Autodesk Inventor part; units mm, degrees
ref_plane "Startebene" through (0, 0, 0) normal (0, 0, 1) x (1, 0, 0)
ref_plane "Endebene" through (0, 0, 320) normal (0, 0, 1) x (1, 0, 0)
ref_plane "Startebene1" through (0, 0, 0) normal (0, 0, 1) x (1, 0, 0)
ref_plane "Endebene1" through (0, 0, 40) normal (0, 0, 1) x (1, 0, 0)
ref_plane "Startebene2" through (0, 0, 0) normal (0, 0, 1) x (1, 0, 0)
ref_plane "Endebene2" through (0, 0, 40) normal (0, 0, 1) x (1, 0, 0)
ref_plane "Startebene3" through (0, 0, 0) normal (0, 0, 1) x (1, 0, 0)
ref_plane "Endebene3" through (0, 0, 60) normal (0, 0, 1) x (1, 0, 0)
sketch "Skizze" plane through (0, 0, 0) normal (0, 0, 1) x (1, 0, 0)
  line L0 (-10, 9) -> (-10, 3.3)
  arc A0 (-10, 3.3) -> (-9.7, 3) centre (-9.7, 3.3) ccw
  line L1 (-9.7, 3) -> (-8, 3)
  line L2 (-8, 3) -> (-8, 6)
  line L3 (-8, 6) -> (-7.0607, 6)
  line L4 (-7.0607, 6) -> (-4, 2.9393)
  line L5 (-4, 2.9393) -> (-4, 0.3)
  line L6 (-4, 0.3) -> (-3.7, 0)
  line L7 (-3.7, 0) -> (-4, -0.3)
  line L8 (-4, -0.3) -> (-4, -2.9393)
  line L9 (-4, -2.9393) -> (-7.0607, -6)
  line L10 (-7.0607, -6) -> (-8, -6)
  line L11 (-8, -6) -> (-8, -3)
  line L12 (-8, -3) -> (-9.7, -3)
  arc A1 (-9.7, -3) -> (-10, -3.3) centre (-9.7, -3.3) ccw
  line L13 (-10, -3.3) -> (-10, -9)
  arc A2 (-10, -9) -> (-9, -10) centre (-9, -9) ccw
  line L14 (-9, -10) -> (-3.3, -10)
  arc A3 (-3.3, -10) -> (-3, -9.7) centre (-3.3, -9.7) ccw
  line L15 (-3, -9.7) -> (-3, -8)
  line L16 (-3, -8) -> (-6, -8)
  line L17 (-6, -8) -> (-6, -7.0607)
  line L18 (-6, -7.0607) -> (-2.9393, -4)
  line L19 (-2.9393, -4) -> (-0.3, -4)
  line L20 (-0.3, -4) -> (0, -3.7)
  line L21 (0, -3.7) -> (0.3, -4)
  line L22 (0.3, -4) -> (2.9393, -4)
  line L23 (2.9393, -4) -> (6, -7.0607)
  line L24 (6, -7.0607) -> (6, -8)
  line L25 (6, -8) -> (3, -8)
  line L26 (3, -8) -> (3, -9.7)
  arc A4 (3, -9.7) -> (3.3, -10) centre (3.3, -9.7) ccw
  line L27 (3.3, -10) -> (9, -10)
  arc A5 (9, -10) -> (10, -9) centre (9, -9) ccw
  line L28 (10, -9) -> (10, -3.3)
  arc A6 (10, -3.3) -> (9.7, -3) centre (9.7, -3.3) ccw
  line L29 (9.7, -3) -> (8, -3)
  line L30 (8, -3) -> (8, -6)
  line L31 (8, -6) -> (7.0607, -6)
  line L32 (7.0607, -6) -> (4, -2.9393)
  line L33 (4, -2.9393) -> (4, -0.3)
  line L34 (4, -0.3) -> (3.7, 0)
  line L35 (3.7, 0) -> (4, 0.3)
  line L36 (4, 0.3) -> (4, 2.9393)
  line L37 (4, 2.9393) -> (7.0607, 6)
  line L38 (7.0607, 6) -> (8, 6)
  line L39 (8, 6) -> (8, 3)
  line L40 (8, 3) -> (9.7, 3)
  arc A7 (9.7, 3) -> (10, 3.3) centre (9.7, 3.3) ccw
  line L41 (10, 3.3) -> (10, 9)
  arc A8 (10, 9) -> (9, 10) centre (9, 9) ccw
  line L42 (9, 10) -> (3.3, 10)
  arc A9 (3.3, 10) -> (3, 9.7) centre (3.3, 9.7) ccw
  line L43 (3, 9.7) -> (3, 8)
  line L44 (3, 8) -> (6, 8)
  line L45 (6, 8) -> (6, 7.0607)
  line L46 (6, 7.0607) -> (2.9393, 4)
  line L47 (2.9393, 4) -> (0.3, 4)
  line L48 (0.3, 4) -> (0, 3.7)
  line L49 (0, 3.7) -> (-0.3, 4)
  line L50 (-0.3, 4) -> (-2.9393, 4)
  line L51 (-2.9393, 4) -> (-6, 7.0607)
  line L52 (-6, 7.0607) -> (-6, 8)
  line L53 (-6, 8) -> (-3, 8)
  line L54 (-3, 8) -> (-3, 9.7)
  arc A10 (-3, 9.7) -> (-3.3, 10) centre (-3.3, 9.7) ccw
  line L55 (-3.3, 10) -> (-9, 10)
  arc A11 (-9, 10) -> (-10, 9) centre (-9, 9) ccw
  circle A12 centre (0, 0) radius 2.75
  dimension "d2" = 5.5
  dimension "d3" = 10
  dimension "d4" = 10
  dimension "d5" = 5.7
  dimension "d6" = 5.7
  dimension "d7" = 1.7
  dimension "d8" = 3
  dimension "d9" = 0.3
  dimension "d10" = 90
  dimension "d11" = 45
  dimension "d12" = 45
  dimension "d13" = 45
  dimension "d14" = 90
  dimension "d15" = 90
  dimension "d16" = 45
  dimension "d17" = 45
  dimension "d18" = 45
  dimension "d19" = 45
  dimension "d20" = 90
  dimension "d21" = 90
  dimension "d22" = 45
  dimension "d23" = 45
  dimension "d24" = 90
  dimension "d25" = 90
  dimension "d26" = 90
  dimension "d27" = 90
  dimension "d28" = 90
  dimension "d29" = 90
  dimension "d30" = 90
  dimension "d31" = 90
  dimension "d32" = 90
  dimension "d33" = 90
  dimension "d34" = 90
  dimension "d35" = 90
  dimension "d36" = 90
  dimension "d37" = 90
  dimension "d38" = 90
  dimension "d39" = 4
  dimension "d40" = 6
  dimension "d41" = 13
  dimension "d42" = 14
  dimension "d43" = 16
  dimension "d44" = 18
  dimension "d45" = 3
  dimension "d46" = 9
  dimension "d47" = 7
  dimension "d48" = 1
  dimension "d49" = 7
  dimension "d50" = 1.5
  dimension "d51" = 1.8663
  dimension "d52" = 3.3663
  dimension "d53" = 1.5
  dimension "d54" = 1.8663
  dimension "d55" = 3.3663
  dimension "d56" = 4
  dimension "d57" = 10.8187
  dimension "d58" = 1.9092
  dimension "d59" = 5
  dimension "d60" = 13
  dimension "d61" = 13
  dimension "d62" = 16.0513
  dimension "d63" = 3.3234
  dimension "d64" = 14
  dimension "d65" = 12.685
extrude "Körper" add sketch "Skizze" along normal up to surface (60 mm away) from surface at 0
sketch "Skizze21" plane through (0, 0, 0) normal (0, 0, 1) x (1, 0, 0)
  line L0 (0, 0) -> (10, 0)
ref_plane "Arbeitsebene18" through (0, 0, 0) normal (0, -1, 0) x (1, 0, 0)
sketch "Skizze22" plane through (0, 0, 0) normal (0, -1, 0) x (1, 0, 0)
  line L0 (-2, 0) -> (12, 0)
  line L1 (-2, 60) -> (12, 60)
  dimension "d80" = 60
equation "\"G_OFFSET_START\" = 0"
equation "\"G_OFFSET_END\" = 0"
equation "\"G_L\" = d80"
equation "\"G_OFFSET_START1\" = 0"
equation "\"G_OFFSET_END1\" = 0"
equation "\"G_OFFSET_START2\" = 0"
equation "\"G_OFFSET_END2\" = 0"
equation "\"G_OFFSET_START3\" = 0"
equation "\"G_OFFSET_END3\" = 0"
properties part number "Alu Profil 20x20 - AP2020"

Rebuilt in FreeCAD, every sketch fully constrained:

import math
import FreeCAD as App
import Part
import Sketcher
Q = App.Units.Quantity

doc = App.newDocument("Part")
body = doc.addObject("PartDesign::Body", "Body")

sketch1 = body.newObject("Sketcher::SketchObject", "Sketch")
sketch1.AttachmentSupport = (doc.getObject("XY_Plane"), [""])
sketch1.MapMode = "FlatFace"
sketch1.addGeometry(Part.ArcOfCircle(Part.Circle(App.Vector(-9, 9, 0), App.Vector(0, 0, 1), 1), math.radians(90), math.radians(180)), False)
sketch1.addGeometry(Part.LineSegment(App.Vector(-10, 9, 0), App.Vector(-10, 3.3, 0)), False)
sketch1.addGeometry(Part.ArcOfCircle(Part.Circle(App.Vector(-9.7, 3.3, 0), App.Vector(0, 0, 1), 0.3), math.radians(180), math.radians(270)), False)
sketch1.addGeometry(Part.LineSegment(App.Vector(-9.7, 3, 0), App.Vector(-8, 3, 0)), False)
sketch1.addGeometry(Part.LineSegment(App.Vector(-8, 3, 0), App.Vector(-8, 6, 0)), False)
sketch1.addGeometry(Part.LineSegment(App.Vector(-8, 6, 0), App.Vector(-7.06, 6, 0)), False)
sketch1.addGeometry(Part.LineSegment(App.Vector(-7.06, 6, 0), App.Vector(-4, 2.94, 0)), False)
sketch1.addGeometry(Part.LineSegment(App.Vector(-4, 2.94, 0), App.Vector(-4, 0.3, 0)), False)
sketch1.addGeometry(Part.LineSegment(App.Vector(-4, 0.3, 0), App.Vector(-3.7, 0, 0)), False)
sketch1.addGeometry(Part.LineSegment(App.Vector(-3.7, 0, 0), App.Vector(-4, -0.3, 0)), False)
sketch1.addGeometry(Part.LineSegment(App.Vector(-4, -0.3, 0), App.Vector(-4, -2.94, 0)), False)
sketch1.addGeometry(Part.LineSegment(App.Vector(-4, -2.94, 0), App.Vector(-7.06, -6, 0)), False)
sketch1.addGeometry(Part.LineSegment(App.Vector(-7.06, -6, 0), App.Vector(-8, -6, 0)), False)
sketch1.addGeometry(Part.LineSegment(App.Vector(-8, -6, 0), App.Vector(-8, -3, 0)), False)
sketch1.addGeometry(Part.LineSegment(App.Vector(-8, -3, 0), App.Vector(-9.7, -3, 0)), False)
sketch1.addGeometry(Part.ArcOfCircle(Part.Circle(App.Vector(-9.7, -3.3, 0), App.Vector(0, 0, 1), 0.3), math.radians(90), math.radians(180)), False)
sketch1.addGeometry(Part.LineSegment(App.Vector(-10, -3.3, 0), App.Vector(-10, -9, 0)), False)
sketch1.addGeometry(Part.ArcOfCircle(Part.Circle(App.Vector(-9, -9, 0), App.Vector(0, 0, 1), 1), math.radians(180), math.radians(270)), False)
sketch1.addGeometry(Part.LineSegment(App.Vector(-9, -10, 0), App.Vector(-3.3, -10, 0)), False)
sketch1.addGeometry(Part.ArcOfCircle(Part.Circle(App.Vector(-3.3, -9.7, 0), App.Vector(0, 0, 1), 0.3), math.radians(-90), math.radians(0)), False)
sketch1.addGeometry(Part.LineSegment(App.Vector(-3, -9.7, 0), App.Vector(-3, -8, 0)), False)
sketch1.addGeometry(Part.LineSegment(App.Vector(-3, -8, 0), App.Vector(-6, -8, 0)), False)
sketch1.addGeometry(Part.LineSegment(App.Vector(-6, -8, 0), App.Vector(-6, -7.06, 0)), False)
sketch1.addGeometry(Part.LineSegment(App.Vector(-6, -7.06, 0), App.Vector(-2.94, -4, 0)), False)
sketch1.addGeometry(Part.LineSegment(App.Vector(-2.94, -4, 0), App.Vector(-0.3, -4, 0)), False)
sketch1.addGeometry(Part.LineSegment(App.Vector(-0.3, -4, 0), App.Vector(0, -3.7, 0)), False)
sketch1.addGeometry(Part.LineSegment(App.Vector(0, -3.7, 0), App.Vector(0.3, -4, 0)), False)
sketch1.addGeometry(Part.LineSegment(App.Vector(0.3, -4, 0), App.Vector(2.94, -4, 0)), False)
sketch1.addGeometry(Part.LineSegment(App.Vector(2.94, -4, 0), App.Vector(6, -7.06, 0)), False)
sketch1.addGeometry(Part.LineSegment(App.Vector(6, -7.06, 0), App.Vector(6, -8, 0)), False)
sketch1.addGeometry(Part.LineSegment(App.Vector(6, -8, 0), App.Vector(3, -8, 0)), False)
sketch1.addGeometry(Part.LineSegment(App.Vector(3, -8, 0), App.Vector(3, -9.7, 0)), False)
sketch1.addGeometry(Part.ArcOfCircle(Part.Circle(App.Vector(3.3, -9.7, 0), App.Vector(0, 0, 1), 0.3), math.radians(180), math.radians(270)), False)
sketch1.addGeometry(Part.LineSegment(App.Vector(3.3, -10, 0), App.Vector(9, -10, 0)), False)
sketch1.addGeometry(Part.ArcOfCircle(Part.Circle(App.Vector(9, -9, 0), App.Vector(0, 0, 1), 1), math.radians(-90), math.radians(0)), False)
sketch1.addGeometry(Part.LineSegment(App.Vector(10, -9, 0), App.Vector(10, -3.3, 0)), False)
sketch1.addGeometry(Part.ArcOfCircle(Part.Circle(App.Vector(9.7, -3.3, 0), App.Vector(0, 0, 1), 0.3), math.radians(0), math.radians(90)), False)
sketch1.addGeometry(Part.LineSegment(App.Vector(9.7, -3, 0), App.Vector(8, -3, 0)), False)
sketch1.addGeometry(Part.LineSegment(App.Vector(8, -3, 0), App.Vector(8, -6, 0)), False)
sketch1.addGeometry(Part.LineSegment(App.Vector(8, -6, 0), App.Vector(7.06, -6, 0)), False)
sketch1.addGeometry(Part.LineSegment(App.Vector(7.06, -6, 0), App.Vector(4, -2.94, 0)), False)
sketch1.addGeometry(Part.LineSegment(App.Vector(4, -2.94, 0), App.Vector(4, -0.3, 0)), False)
sketch1.addGeometry(Part.LineSegment(App.Vector(4, -0.3, 0), App.Vector(3.7, 0, 0)), False)
sketch1.addGeometry(Part.LineSegment(App.Vector(3.7, 0, 0), App.Vector(4, 0.3, 0)), False)
sketch1.addGeometry(Part.LineSegment(App.Vector(4, 0.3, 0), App.Vector(4, 2.94, 0)), False)
sketch1.addGeometry(Part.LineSegment(App.Vector(4, 2.94, 0), App.Vector(7.06, 6, 0)), False)
sketch1.addGeometry(Part.LineSegment(App.Vector(7.06, 6, 0), App.Vector(8, 6, 0)), False)
sketch1.addGeometry(Part.LineSegment(App.Vector(8, 6, 0), App.Vector(8, 3, 0)), False)
sketch1.addGeometry(Part.LineSegment(App.Vector(8, 3, 0), App.Vector(9.7, 3, 0)), False)
sketch1.addGeometry(Part.ArcOfCircle(Part.Circle(App.Vector(9.7, 3.3, 0), App.Vector(0, 0, 1), 0.3), math.radians(-90), math.radians(0)), False)
sketch1.addGeometry(Part.LineSegment(App.Vector(10, 3.3, 0), App.Vector(10, 9, 0)), False)
sketch1.addGeometry(Part.ArcOfCircle(Part.Circle(App.Vector(9, 9, 0), App.Vector(0, 0, 1), 1), math.radians(0), math.radians(90)), False)
sketch1.addGeometry(Part.LineSegment(App.Vector(9, 10, 0), App.Vector(3.3, 10, 0)), False)
sketch1.addGeometry(Part.ArcOfCircle(Part.Circle(App.Vector(3.3, 9.7, 0), App.Vector(0, 0, 1), 0.3), math.radians(90), math.radians(180)), False)
sketch1.addGeometry(Part.LineSegment(App.Vector(3, 9.7, 0), App.Vector(3, 8, 0)), False)
sketch1.addGeometry(Part.LineSegment(App.Vector(3, 8, 0), App.Vector(6, 8, 0)), False)
sketch1.addGeometry(Part.LineSegment(App.Vector(6, 8, 0), App.Vector(6, 7.06, 0)), False)
sketch1.addGeometry(Part.LineSegment(App.Vector(6, 7.06, 0), App.Vector(2.94, 4, 0)), False)
sketch1.addGeometry(Part.LineSegment(App.Vector(2.94, 4, 0), App.Vector(0.3, 4, 0)), False)
sketch1.addGeometry(Part.LineSegment(App.Vector(0.3, 4, 0), App.Vector(0, 3.7, 0)), False)
sketch1.addGeometry(Part.LineSegment(App.Vector(0, 3.7, 0), App.Vector(-0.3, 4, 0)), False)
sketch1.addGeometry(Part.LineSegment(App.Vector(-0.3, 4, 0), App.Vector(-2.94, 4, 0)), False)
sketch1.addGeometry(Part.LineSegment(App.Vector(-2.94, 4, 0), App.Vector(-6, 7.06, 0)), False)
sketch1.addGeometry(Part.LineSegment(App.Vector(-6, 7.06, 0), App.Vector(-6, 8, 0)), False)
sketch1.addGeometry(Part.LineSegment(App.Vector(-6, 8, 0), App.Vector(-3, 8, 0)), False)
sketch1.addGeometry(Part.LineSegment(App.Vector(-3, 8, 0), App.Vector(-3, 9.7, 0)), False)
sketch1.addGeometry(Part.ArcOfCircle(Part.Circle(App.Vector(-3.3, 9.7, 0), App.Vector(0, 0, 1), 0.3), math.radians(0), math.radians(90)), False)
sketch1.addGeometry(Part.LineSegment(App.Vector(-3.3, 10, 0), App.Vector(-9, 10, 0)), False)
sketch1.addGeometry(Part.Circle(App.Vector(0, 0, 0), App.Vector(0, 0, 1), 2.75), False)
sketch1.addConstraint(Sketcher.Constraint("Tangent", 0, 2, 1, 1))
sketch1.addConstraint(Sketcher.Constraint("Tangent", 1, 2, 2, 1))
sketch1.addConstraint(Sketcher.Constraint("Tangent", 2, 2, 3, 1))
sketch1.addConstraint(Sketcher.Constraint("Coincident", 3, 2, 4, 1))
sketch1.addConstraint(Sketcher.Constraint("Coincident", 4, 2, 5, 1))
sketch1.addConstraint(Sketcher.Constraint("Coincident", 5, 2, 6, 1))
sketch1.addConstraint(Sketcher.Constraint("Coincident", 6, 2, 7, 1))
sketch1.addConstraint(Sketcher.Constraint("Coincident", 7, 2, 8, 1))
sketch1.addConstraint(Sketcher.Constraint("Coincident", 8, 2, 9, 1))
sketch1.addConstraint(Sketcher.Constraint("Coincident", 9, 2, 10, 1))
sketch1.addConstraint(Sketcher.Constraint("Coincident", 10, 2, 11, 1))
sketch1.addConstraint(Sketcher.Constraint("Coincident", 11, 2, 12, 1))
sketch1.addConstraint(Sketcher.Constraint("Coincident", 12, 2, 13, 1))
sketch1.addConstraint(Sketcher.Constraint("Coincident", 13, 2, 14, 1))
sketch1.addConstraint(Sketcher.Constraint("Tangent", 14, 2, 15, 1))
sketch1.addConstraint(Sketcher.Constraint("Tangent", 15, 2, 16, 1))
sketch1.addConstraint(Sketcher.Constraint("Tangent", 16, 2, 17, 1))
sketch1.addConstraint(Sketcher.Constraint("Tangent", 17, 2, 18, 1))
sketch1.addConstraint(Sketcher.Constraint("Tangent", 18, 2, 19, 1))
sketch1.addConstraint(Sketcher.Constraint("Tangent", 19, 2, 20, 1))
sketch1.addConstraint(Sketcher.Constraint("Coincident", 20, 2, 21, 1))
sketch1.addConstraint(Sketcher.Constraint("Coincident", 21, 2, 22, 1))
sketch1.addConstraint(Sketcher.Constraint("Coincident", 22, 2, 23, 1))
sketch1.addConstraint(Sketcher.Constraint("Coincident", 23, 2, 24, 1))
sketch1.addConstraint(Sketcher.Constraint("Coincident", 24, 2, 25, 1))
sketch1.addConstraint(Sketcher.Constraint("Coincident", 25, 2, 26, 1))
sketch1.addConstraint(Sketcher.Constraint("Coincident", 26, 2, 27, 1))
sketch1.addConstraint(Sketcher.Constraint("Coincident", 27, 2, 28, 1))
sketch1.addConstraint(Sketcher.Constraint("Coincident", 28, 2, 29, 1))
sketch1.addConstraint(Sketcher.Constraint("Coincident", 29, 2, 30, 1))
sketch1.addConstraint(Sketcher.Constraint("Coincident", 30, 2, 31, 1))
sketch1.addConstraint(Sketcher.Constraint("Tangent", 31, 2, 32, 1))
sketch1.addConstraint(Sketcher.Constraint("Tangent", 32, 2, 33, 1))
sketch1.addConstraint(Sketcher.Constraint("Tangent", 33, 2, 34, 1))
sketch1.addConstraint(Sketcher.Constraint("Tangent", 34, 2, 35, 1))
sketch1.addConstraint(Sketcher.Constraint("Tangent", 35, 2, 36, 1))
sketch1.addConstraint(Sketcher.Constraint("Tangent", 36, 2, 37, 1))
sketch1.addConstraint(Sketcher.Constraint("Coincident", 37, 2, 38, 1))
sketch1.addConstraint(Sketcher.Constraint("Coincident", 38, 2, 39, 1))
sketch1.addConstraint(Sketcher.Constraint("Coincident", 39, 2, 40, 1))
sketch1.addConstraint(Sketcher.Constraint("Coincident", 40, 2, 41, 1))
sketch1.addConstraint(Sketcher.Constraint("Coincident", 41, 2, 42, 1))
sketch1.addConstraint(Sketcher.Constraint("Coincident", 42, 2, 43, 1))
sketch1.addConstraint(Sketcher.Constraint("Coincident", 43, 2, 44, 1))
sketch1.addConstraint(Sketcher.Constraint("Coincident", 44, 2, 45, 1))
sketch1.addConstraint(Sketcher.Constraint("Coincident", 45, 2, 46, 1))
sketch1.addConstraint(Sketcher.Constraint("Coincident", 46, 2, 47, 1))
sketch1.addConstraint(Sketcher.Constraint("Coincident", 47, 2, 48, 1))
sketch1.addConstraint(Sketcher.Constraint("Tangent", 48, 2, 49, 1))
sketch1.addConstraint(Sketcher.Constraint("Tangent", 49, 2, 50, 1))
sketch1.addConstraint(Sketcher.Constraint("Tangent", 50, 2, 51, 1))
sketch1.addConstraint(Sketcher.Constraint("Tangent", 51, 2, 52, 1))
sketch1.addConstraint(Sketcher.Constraint("Tangent", 52, 2, 53, 1))
sketch1.addConstraint(Sketcher.Constraint("Tangent", 53, 2, 54, 1))
sketch1.addConstraint(Sketcher.Constraint("Coincident", 54, 2, 55, 1))
sketch1.addConstraint(Sketcher.Constraint("Coincident", 55, 2, 56, 1))
sketch1.addConstraint(Sketcher.Constraint("Coincident", 56, 2, 57, 1))
sketch1.addConstraint(Sketcher.Constraint("Coincident", 57, 2, 58, 1))
sketch1.addConstraint(Sketcher.Constraint("Coincident", 58, 2, 59, 1))
sketch1.addConstraint(Sketcher.Constraint("Coincident", 59, 2, 60, 1))
sketch1.addConstraint(Sketcher.Constraint("Coincident", 60, 2, 61, 1))
sketch1.addConstraint(Sketcher.Constraint("Coincident", 61, 2, 62, 1))
sketch1.addConstraint(Sketcher.Constraint("Coincident", 62, 2, 63, 1))
sketch1.addConstraint(Sketcher.Constraint("Coincident", 63, 2, 64, 1))
sketch1.addConstraint(Sketcher.Constraint("Coincident", 64, 2, 65, 1))
sketch1.addConstraint(Sketcher.Constraint("Tangent", 65, 2, 66, 1))
sketch1.addConstraint(Sketcher.Constraint("Tangent", 66, 2, 67, 1))
sketch1.addConstraint(Sketcher.Constraint("Tangent", 67, 2, 0, 1))
sketch1.addConstraint(Sketcher.Constraint("Vertical", 1))
sketch1.addConstraint(Sketcher.Constraint("Horizontal", 3))
sketch1.addConstraint(Sketcher.Constraint("Vertical", 4))
sketch1.addConstraint(Sketcher.Constraint("Horizontal", 5))
sketch1.addConstraint(Sketcher.Constraint("Vertical", 7))
sketch1.addConstraint(Sketcher.Constraint("Vertical", 10))
sketch1.addConstraint(Sketcher.Constraint("Horizontal", 12))
sketch1.addConstraint(Sketcher.Constraint("Vertical", 13))
sketch1.addConstraint(Sketcher.Constraint("Horizontal", 14))
sketch1.addConstraint(Sketcher.Constraint("Vertical", 16))
sketch1.addConstraint(Sketcher.Constraint("Horizontal", 18))
sketch1.addConstraint(Sketcher.Constraint("Vertical", 20))
sketch1.addConstraint(Sketcher.Constraint("Horizontal", 21))
sketch1.addConstraint(Sketcher.Constraint("Vertical", 22))
sketch1.addConstraint(Sketcher.Constraint("Horizontal", 24))
sketch1.addConstraint(Sketcher.Constraint("Horizontal", 27))
sketch1.addConstraint(Sketcher.Constraint("Vertical", 29))
sketch1.addConstraint(Sketcher.Constraint("Horizontal", 30))
sketch1.addConstraint(Sketcher.Constraint("Vertical", 31))
sketch1.addConstraint(Sketcher.Constraint("Horizontal", 33))
sketch1.addConstraint(Sketcher.Constraint("Vertical", 35))
sketch1.addConstraint(Sketcher.Constraint("Horizontal", 37))
sketch1.addConstraint(Sketcher.Constraint("Vertical", 38))
sketch1.addConstraint(Sketcher.Constraint("Horizontal", 39))
sketch1.addConstraint(Sketcher.Constraint("Vertical", 41))
sketch1.addConstraint(Sketcher.Constraint("Vertical", 44))
sketch1.addConstraint(Sketcher.Constraint("Horizontal", 46))
sketch1.addConstraint(Sketcher.Constraint("Vertical", 47))
sketch1.addConstraint(Sketcher.Constraint("Horizontal", 48))
sketch1.addConstraint(Sketcher.Constraint("Vertical", 50))
sketch1.addConstraint(Sketcher.Constraint("Horizontal", 52))
sketch1.addConstraint(Sketcher.Constraint("Vertical", 54))
sketch1.addConstraint(Sketcher.Constraint("Horizontal", 55))
sketch1.addConstraint(Sketcher.Constraint("Vertical", 56))
sketch1.addConstraint(Sketcher.Constraint("Horizontal", 58))
sketch1.addConstraint(Sketcher.Constraint("Horizontal", 61))
sketch1.addConstraint(Sketcher.Constraint("Vertical", 63))
sketch1.addConstraint(Sketcher.Constraint("Horizontal", 64))
sketch1.addConstraint(Sketcher.Constraint("Vertical", 65))
sketch1.addConstraint(Sketcher.Constraint("Horizontal", 67))
sketch1.addConstraint(Sketcher.Constraint("Coincident", 68, 3, -1, 1))
sketch1.addConstraint(Sketcher.Constraint("Equal", 2, 15))
sketch1.addConstraint(Sketcher.Constraint("Equal", 0, 17))
sketch1.addConstraint(Sketcher.Constraint("Equal", 15, 19))
sketch1.addConstraint(Sketcher.Constraint("Equal", 19, 32))
sketch1.addConstraint(Sketcher.Constraint("Equal", 17, 34))
sketch1.addConstraint(Sketcher.Constraint("Equal", 32, 36))
sketch1.addConstraint(Sketcher.Constraint("Equal", 36, 49))
sketch1.addConstraint(Sketcher.Constraint("Equal", 34, 51))
sketch1.addConstraint(Sketcher.Constraint("Equal", 49, 53))
sketch1.addConstraint(Sketcher.Constraint("Equal", 53, 66))
sketch1.addConstraint(Sketcher.Constraint("Symmetric", 0, 3, 34, 3, -1, 1))
sketch1.addConstraint(Sketcher.Constraint("Symmetric", 15, 3, 49, 3, -1, 1))
sketch1.addConstraint(Sketcher.Constraint("Symmetric", 19, 3, 53, 3, -1, 1))
sketch1.addConstraint(Sketcher.Constraint("Symmetric", 3, 2, 37, 2, -1, 1))
sketch1.addConstraint(Sketcher.Constraint("Symmetric", 5, 2, 39, 2, -1, 1))
sketch1.addConstraint(Sketcher.Constraint("Symmetric", 6, 2, 40, 2, -1, 1))
sketch1.addConstraint(Sketcher.Constraint("Symmetric", 8, 2, 42, 2, -1, 1))
sketch1.addConstraint(Sketcher.Constraint("Symmetric", 9, 2, 43, 2, -1, 1))
sketch1.addConstraint(Sketcher.Constraint("Symmetric", 11, 2, 45, 2, -1, 1))
sketch1.addConstraint(Sketcher.Constraint("Symmetric", 21, 2, 55, 2, -1, 1))
sketch1.addConstraint(Sketcher.Constraint("Symmetric", 23, 2, 57, 2, -1, 1))
sketch1.addConstraint(Sketcher.Constraint("Symmetric", 25, 2, 59, 2, -1, 1))
sketch1.addConstraint(Sketcher.Constraint("Symmetric", 26, 2, 60, 2, -1, 1))
sketch1.addConstraint(Sketcher.Constraint("Symmetric", 28, 2, 62, 2, -1, 1))
sketch1.addConstraint(Sketcher.Constraint("Symmetric", 30, 2, 64, 2, -1, 1))
sketch1.addConstraint(Sketcher.Constraint("Symmetric", 19, 3, 32, 3, -2))
sketch1.addConstraint(Sketcher.Constraint("Symmetric", 15, 3, 36, 3, -2))
sketch1.addConstraint(Sketcher.Constraint("Symmetric", 24, 2, 26, 2, -2))
sketch1.addConstraint(Sketcher.Constraint("Symmetric", 22, 2, 28, 2, -2))
sketch1.addConstraint(Sketcher.Constraint("Symmetric", 12, 2, 38, 2, -2))
sketch1.addConstraint(Sketcher.Constraint("Symmetric", 10, 2, 40, 2, -2))
sketch1.addConstraint(Sketcher.Constraint("PointOnObject", 8, 2, -1))
sketch1.addConstraint(Sketcher.Constraint("PointOnObject", 25, 2, -2))
sketch1.addConstraint(Sketcher.Constraint("Parallel", 6, 8))
sketch1.addConstraint(Sketcher.Constraint("Perpendicular", 8, 9))
sketch1.addConstraint(Sketcher.Constraint("Parallel", 9, 11))
sketch1.addConstraint(Sketcher.Constraint("Parallel", 11, 23))
sketch1.addConstraint(Sketcher.Constraint("Parallel", 23, 25))
sketch1.addConstraint(Sketcher.Constraint("Perpendicular", 25, 26))
sketch1.addConstraint(Sketcher.Constraint("Parallel", 26, 28))
sketch1.addConstraint(Sketcher.Constraint("Parallel", 40, 42))
sketch1.addConstraint(Sketcher.Constraint("Parallel", 43, 45))
sketch1.addConstraint(Sketcher.Constraint("Parallel", 45, 57))
sketch1.addConstraint(Sketcher.Constraint("Parallel", 57, 59))
sketch1.addConstraint(Sketcher.Constraint("Parallel", 60, 62))
sketch1.addConstraint(Sketcher.Constraint("Horizontal", 21, 2, 29, 2))
sketch1.addConstraint(Sketcher.Constraint("Vertical", 38, 2, 46, 2))
sketch1.addConstraint(Sketcher.Constraint("Equal", 67, 1))
sketch1.addConstraint(Sketcher.Constraint("Equal", 64, 4))
sketch1.addConstraint(Sketcher.Constraint("Equal", 61, 7))
sketch1.addConstraint(Sketcher.Constraint("Equal", 48, 20))
sketch1.addConstraint(Sketcher.Constraint("Equal", 46, 22))
sketch1.addConstraint(Sketcher.Constraint("Equal", 11, 23))
sketch1.addConstraint(Sketcher.Constraint("Equal", 9, 25))
sketch1.addConstraint(Sketcher.Constraint("Radius", 0, Q("1 mm")))
sketch1.addConstraint(Sketcher.Constraint("Diameter", 68, Q("5.5 mm")))
sketch1.addConstraint(Sketcher.Constraint("Radius", 2, Q("0.3 mm")))
sketch1.addConstraint(Sketcher.Constraint("DistanceX", 21, 2, 21, 1, Q("3 mm")))
sketch1.addConstraint(Sketcher.Constraint("DistanceX", 3, 1, 3, 2, Q("1.7 mm")))
sketch1.addConstraint(Sketcher.Constraint("DistanceX", 18, 1, 18, 2, Q("5.7 mm")))
sketch1.addConstraint(Sketcher.Constraint("DistanceX", 0, 3, -1, 1, Q("9 mm")))
sketch1.addConstraint(Sketcher.Constraint("DistanceX", 6, 2, -1, 1, Q("4 mm")))
sketch1.addConstraint(Sketcher.Constraint("DistanceY", -1, 1, 7, 2, Q("0.3 mm")))
sketch1.addConstraint(Sketcher.Constraint("DistanceX", 5, 1, 5, 2, Q("0.9393 mm")))
pad1 = body.newObject("PartDesign::Pad", "Pad")
pad1.Profile = sketch1
pad1.Length = 60

doc.recompute()
